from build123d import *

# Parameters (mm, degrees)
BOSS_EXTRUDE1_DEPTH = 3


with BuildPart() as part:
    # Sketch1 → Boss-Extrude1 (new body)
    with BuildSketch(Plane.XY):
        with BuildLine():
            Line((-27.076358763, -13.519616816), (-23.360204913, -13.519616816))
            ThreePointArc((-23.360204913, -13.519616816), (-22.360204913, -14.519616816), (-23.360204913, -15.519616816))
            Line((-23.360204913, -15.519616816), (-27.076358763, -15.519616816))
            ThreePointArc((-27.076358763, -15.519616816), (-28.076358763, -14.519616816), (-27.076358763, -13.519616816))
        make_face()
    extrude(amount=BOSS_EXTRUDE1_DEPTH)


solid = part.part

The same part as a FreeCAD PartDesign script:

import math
import FreeCAD as App
import Part
import Sketcher
Q = App.Units.Quantity

doc = App.newDocument("Part")
body = doc.addObject("PartDesign::Body", "Body")

# Sketch on XY plane
sketch1 = body.newObject("Sketcher::SketchObject", "Sketch")
sketch1.AttachmentSupport = (doc.getObject("XY_Plane"), [""])
sketch1.MapMode = "FlatFace"
sketch1.addGeometry(Part.LineSegment(App.Vector(-23.4, -13.5, 0), App.Vector(-27.1, -13.5, 0)), False)
sketch1.addGeometry(Part.ArcOfCircle(Part.Circle(App.Vector(-27.1, -14.5, 0), App.Vector(0, 0, 1), 1), math.radians(90), math.radians(270)), False)
sketch1.addGeometry(Part.LineSegment(App.Vector(-27.1, -15.5, 0), App.Vector(-23.4, -15.5, 0)), False)
sketch1.addGeometry(Part.ArcOfCircle(Part.Circle(App.Vector(-23.4, -14.5, 0), App.Vector(0, 0, 1), 1), math.radians(-90), math.radians(90)), False)
sketch1.addConstraint(Sketcher.Constraint("Tangent", 0, 2, 1, 1))
sketch1.addConstraint(Sketcher.Constraint("Tangent", 1, 2, 2, 1))
sketch1.addConstraint(Sketcher.Constraint("Tangent", 2, 2, 3, 1))
sketch1.addConstraint(Sketcher.Constraint("Tangent", 3, 2, 0, 1))
sketch1.addConstraint(Sketcher.Constraint("Horizontal", 0))
sketch1.addConstraint(Sketcher.Constraint("Horizontal", 2))
sketch1.addConstraint(Sketcher.Constraint("Radius", 1, Q("1 mm")))
sketch1.addConstraint(Sketcher.Constraint("DistanceX", 0, 2, 0, 1, Q("3.716154 mm")))
sketch1.addConstraint(Sketcher.Constraint("DistanceX", 1, 3, -1, 1, Q("27.076359 mm")))
sketch1.addConstraint(Sketcher.Constraint("DistanceY", 1, 3, -1, 1, Q("14.519617 mm")))
pad1 = body.newObject("PartDesign::Pad", "Pad")
pad1.Profile = sketch1
pad1.Length = 3

doc.recompute()
